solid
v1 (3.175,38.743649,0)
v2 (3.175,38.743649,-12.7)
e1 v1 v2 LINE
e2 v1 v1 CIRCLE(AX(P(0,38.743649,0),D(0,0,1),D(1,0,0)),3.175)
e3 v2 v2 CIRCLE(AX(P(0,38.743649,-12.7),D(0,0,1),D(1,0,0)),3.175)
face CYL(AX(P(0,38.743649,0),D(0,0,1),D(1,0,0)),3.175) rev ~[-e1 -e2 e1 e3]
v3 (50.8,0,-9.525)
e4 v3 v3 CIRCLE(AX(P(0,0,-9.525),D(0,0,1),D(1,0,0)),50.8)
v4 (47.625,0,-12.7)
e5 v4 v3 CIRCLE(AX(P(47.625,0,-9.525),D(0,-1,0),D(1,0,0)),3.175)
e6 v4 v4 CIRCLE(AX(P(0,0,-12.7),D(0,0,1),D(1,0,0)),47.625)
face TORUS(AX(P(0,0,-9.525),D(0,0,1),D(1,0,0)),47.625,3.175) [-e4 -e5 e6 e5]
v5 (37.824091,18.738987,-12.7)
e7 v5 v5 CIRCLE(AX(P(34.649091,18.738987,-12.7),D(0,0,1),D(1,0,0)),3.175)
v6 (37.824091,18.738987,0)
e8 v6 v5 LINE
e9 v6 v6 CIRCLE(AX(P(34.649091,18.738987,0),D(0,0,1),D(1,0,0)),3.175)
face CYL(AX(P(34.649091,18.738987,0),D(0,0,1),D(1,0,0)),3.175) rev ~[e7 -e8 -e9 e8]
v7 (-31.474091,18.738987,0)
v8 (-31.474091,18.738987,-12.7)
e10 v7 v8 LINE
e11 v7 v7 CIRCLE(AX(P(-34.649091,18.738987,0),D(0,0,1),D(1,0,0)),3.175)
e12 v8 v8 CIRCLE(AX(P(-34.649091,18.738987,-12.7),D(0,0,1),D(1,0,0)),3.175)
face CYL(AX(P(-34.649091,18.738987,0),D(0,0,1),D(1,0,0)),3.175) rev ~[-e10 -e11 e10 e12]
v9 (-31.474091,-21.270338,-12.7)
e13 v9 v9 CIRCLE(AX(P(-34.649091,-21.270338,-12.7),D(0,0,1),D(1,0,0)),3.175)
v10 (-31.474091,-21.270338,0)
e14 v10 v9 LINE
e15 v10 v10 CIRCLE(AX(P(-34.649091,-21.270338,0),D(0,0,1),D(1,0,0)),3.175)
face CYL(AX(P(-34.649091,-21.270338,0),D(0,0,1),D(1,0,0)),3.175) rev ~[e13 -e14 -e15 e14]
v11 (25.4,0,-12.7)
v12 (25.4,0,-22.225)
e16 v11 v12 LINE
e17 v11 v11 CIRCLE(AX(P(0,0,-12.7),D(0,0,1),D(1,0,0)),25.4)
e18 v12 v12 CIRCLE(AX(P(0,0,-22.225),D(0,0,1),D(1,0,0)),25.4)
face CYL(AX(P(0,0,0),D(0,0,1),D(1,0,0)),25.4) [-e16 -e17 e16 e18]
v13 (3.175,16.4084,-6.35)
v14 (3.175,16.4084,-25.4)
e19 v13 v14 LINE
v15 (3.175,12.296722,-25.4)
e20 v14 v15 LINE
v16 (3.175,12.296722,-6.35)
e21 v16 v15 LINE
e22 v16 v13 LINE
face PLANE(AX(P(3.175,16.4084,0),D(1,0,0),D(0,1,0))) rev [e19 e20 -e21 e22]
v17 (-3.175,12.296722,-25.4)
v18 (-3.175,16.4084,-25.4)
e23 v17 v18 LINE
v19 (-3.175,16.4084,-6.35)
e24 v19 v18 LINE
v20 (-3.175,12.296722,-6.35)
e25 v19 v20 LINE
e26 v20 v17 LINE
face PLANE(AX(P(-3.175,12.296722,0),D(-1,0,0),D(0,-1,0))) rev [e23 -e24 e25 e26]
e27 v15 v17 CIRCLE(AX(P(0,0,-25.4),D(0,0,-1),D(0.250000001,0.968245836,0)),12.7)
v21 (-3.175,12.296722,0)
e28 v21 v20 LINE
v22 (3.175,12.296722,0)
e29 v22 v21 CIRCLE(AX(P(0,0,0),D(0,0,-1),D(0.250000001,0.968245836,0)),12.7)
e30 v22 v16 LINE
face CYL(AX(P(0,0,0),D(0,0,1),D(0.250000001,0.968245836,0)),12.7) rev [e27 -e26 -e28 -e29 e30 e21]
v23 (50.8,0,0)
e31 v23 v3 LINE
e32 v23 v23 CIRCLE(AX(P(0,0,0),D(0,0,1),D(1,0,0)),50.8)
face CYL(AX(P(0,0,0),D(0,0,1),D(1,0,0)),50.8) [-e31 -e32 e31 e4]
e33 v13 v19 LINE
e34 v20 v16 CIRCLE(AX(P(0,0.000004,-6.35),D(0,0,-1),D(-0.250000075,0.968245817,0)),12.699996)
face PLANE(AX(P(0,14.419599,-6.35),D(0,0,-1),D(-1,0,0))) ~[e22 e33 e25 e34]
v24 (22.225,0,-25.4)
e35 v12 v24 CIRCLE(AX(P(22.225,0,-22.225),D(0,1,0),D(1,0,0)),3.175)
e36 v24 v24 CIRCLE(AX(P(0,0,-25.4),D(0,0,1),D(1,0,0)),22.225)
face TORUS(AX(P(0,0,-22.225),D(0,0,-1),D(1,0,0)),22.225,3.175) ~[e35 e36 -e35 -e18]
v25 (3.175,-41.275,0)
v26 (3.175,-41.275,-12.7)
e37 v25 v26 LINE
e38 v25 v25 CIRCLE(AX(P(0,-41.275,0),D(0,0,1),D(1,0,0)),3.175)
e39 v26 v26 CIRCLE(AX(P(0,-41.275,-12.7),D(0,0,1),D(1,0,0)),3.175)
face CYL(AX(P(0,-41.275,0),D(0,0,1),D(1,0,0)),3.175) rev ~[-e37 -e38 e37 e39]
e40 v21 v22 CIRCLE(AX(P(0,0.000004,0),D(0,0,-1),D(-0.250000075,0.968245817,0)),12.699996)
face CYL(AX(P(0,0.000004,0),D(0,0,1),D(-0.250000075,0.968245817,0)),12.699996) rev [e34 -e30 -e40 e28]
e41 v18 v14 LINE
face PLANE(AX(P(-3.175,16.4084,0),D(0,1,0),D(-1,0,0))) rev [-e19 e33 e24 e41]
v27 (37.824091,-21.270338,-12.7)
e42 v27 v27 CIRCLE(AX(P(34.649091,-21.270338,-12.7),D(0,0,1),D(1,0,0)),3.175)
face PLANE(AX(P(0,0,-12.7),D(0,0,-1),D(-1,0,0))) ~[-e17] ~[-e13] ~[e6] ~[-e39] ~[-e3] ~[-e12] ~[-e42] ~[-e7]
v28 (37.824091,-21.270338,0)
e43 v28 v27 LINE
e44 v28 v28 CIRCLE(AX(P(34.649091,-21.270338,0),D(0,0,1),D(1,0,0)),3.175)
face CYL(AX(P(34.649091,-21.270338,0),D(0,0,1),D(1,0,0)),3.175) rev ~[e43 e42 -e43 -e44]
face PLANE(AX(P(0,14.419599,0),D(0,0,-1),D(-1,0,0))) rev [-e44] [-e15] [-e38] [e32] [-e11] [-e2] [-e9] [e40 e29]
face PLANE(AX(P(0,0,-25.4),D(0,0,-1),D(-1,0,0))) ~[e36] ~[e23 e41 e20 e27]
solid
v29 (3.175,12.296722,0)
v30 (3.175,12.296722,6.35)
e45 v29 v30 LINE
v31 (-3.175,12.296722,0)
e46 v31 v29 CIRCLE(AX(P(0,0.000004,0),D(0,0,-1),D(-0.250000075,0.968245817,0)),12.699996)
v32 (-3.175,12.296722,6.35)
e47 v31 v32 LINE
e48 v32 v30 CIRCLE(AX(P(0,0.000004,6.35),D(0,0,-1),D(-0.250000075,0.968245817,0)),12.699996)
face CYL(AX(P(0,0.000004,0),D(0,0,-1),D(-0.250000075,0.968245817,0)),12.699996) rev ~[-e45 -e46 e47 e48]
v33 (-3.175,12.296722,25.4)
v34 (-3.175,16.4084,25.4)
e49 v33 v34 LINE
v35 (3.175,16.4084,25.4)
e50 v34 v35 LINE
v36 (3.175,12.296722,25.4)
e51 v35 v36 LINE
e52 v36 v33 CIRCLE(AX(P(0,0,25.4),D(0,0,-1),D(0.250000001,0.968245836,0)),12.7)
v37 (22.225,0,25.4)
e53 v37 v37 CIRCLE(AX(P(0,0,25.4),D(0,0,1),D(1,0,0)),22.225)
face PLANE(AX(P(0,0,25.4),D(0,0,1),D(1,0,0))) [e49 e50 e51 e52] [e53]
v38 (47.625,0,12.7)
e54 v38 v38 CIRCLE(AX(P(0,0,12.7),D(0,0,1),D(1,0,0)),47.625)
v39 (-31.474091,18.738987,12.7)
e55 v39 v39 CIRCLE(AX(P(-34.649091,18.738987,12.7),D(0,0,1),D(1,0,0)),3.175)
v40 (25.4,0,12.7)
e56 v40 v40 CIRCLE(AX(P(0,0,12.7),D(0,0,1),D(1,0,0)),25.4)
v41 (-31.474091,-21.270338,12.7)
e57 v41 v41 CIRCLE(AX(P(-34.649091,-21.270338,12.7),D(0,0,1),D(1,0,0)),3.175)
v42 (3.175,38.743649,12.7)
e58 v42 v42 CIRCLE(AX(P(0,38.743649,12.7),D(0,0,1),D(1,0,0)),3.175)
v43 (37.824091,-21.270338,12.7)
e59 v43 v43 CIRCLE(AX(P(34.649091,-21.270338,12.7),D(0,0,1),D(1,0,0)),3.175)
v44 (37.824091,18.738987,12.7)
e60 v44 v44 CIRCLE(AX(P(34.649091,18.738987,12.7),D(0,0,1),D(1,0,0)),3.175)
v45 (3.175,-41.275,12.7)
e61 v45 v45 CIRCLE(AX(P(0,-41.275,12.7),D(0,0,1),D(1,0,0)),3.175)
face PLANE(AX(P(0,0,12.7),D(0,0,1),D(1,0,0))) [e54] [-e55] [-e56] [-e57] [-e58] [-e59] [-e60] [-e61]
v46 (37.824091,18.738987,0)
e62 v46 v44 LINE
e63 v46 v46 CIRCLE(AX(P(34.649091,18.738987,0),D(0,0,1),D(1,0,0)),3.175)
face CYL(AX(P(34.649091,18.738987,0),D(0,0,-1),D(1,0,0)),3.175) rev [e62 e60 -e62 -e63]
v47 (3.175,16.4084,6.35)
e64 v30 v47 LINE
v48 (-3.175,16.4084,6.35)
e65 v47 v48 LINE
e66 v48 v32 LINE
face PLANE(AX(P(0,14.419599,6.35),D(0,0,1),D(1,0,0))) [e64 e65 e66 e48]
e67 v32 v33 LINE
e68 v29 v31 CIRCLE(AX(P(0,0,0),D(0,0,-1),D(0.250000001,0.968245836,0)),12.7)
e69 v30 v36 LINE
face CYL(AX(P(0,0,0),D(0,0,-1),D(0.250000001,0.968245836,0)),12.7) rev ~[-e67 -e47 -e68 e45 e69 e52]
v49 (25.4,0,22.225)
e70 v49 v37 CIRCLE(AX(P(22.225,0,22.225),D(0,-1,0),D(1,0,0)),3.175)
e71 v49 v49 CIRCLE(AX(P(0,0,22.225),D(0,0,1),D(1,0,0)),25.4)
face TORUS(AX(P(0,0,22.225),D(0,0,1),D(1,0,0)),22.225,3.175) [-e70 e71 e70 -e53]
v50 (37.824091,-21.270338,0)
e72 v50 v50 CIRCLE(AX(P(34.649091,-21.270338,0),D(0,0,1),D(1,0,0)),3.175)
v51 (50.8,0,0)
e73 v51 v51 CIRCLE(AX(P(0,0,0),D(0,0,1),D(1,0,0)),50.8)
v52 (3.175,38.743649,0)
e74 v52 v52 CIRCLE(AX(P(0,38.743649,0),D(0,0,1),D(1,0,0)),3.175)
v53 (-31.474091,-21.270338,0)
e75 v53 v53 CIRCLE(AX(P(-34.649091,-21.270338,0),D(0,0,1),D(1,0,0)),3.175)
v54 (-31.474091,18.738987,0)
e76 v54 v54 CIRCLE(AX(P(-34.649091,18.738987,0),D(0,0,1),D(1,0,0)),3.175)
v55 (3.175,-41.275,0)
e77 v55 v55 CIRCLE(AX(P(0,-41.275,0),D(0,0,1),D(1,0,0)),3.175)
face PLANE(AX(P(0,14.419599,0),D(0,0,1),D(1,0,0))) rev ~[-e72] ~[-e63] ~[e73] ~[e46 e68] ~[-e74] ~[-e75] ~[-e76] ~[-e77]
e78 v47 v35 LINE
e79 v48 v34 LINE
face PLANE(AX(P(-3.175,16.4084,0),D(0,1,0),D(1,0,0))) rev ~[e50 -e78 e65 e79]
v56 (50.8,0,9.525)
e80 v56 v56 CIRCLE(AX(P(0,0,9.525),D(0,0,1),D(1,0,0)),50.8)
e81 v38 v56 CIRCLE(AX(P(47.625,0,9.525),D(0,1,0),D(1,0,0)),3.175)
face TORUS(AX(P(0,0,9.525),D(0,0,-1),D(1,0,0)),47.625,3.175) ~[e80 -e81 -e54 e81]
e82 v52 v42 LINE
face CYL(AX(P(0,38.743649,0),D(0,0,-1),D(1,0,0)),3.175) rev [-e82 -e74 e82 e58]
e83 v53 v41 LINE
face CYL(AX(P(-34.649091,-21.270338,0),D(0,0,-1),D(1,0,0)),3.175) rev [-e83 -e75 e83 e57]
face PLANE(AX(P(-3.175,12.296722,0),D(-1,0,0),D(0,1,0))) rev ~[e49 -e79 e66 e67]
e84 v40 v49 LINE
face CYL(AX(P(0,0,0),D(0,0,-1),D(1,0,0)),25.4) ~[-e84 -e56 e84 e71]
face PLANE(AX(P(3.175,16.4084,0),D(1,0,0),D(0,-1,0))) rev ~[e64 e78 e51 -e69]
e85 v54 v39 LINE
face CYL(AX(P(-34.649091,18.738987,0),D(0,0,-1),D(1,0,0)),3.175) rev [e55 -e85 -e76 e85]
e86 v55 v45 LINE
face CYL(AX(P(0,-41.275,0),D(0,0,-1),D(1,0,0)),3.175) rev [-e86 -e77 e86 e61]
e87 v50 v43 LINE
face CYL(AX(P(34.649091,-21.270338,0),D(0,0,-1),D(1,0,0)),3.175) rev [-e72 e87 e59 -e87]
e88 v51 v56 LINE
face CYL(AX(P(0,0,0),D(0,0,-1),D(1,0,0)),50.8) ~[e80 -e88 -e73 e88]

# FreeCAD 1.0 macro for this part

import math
import FreeCAD as App
import Part
import Sketcher
from FreeCAD import Vector
Q = App.Units.Quantity


def edges_at(feature, points):
    """Names of the edges that pass closest to the given points."""
    edges = feature.Shape.Edges
    near = lambda p: min(range(len(edges)), key=lambda i: edges[i].distToShape(Part.Vertex(*p))[0])
    return sorted({f"Edge{near(p) + 1}" for p in points})

doc = App.newDocument("Part")
params = doc.addObject("Spreadsheet::Sheet", "Params")
for row, (alias, value) in enumerate([
    ("sketch1_diameter", "4 in"),
    ("sketch1_diameter2", "2 in"),
    ("sketch1_diameter3", "0.25 in"),
    ("pad1_length", "0.5 in"),
    ("sketch2_diameter", "2 in"),
    ("sketch2_radius", "0.5 in"),
    ("sketch2_width", "0.25 in"),
    ("pad2_length", "1 in"),
    ("fillet_radius", "0.125 in"),
    ("sketch3_radius", "0.4999999 in"),
    ("sketch3_width", "0.25 in"),
    ("pad3_length", "0.25 in"),
], start=1):
    params.set(f"A{row}", alias)
    params.set(f"B{row}", "=" + value)
    params.setAlias(f"B{row}", alias)

body = doc.addObject("PartDesign::Body", "Body")

# Sketch on XY plane
sketch1 = body.newObject("Sketcher::SketchObject", "Sketch")
sketch1.AttachmentSupport = (doc.getObject("XY_Plane"), [""])
sketch1.MapMode = "FlatFace"
sketch1.addGeometry(Part.Circle(Vector(0, 0, 0), Vector(0, 0, 1), 50.8), False)
sketch1.addGeometry(Part.Circle(Vector(-34.6, -21.3, 0), Vector(0, 0, 1), 3.2), False)
sketch1.addGeometry(Part.Circle(Vector(0, -41.3, 0), Vector(0, 0, 1), 3.2), False)
sketch1.addGeometry(Part.Circle(Vector(34.6, -21.3, 0), Vector(0, 0, 1), 3.2), False)
sketch1.addGeometry(Part.Circle(Vector(-34.6, 18.7, 0), Vector(0, 0, 1), 3.2), False)
sketch1.addGeometry(Part.Circle(Vector(0, 0, 0), Vector(0, 0, 1), 25.4), False)
sketch1.addGeometry(Part.Circle(Vector(34.6, 18.7, 0), Vector(0, 0, 1), 3.2), False)
sketch1.addGeometry(Part.Circle(Vector(0, 38.7, 0), Vector(0, 0, 1), 3.2), False)
sketch1.addConstraint(Sketcher.Constraint("Coincident", 0, 3, -1, 1))
sketch1.addConstraint(Sketcher.Constraint("Coincident", 5, 3, -1, 1))
sketch1.addConstraint(Sketcher.Constraint("Equal", 1, 2))
sketch1.addConstraint(Sketcher.Constraint("Equal", 2, 3))
sketch1.addConstraint(Sketcher.Constraint("Equal", 3, 4))
sketch1.addConstraint(Sketcher.Constraint("Equal", 4, 6))
sketch1.addConstraint(Sketcher.Constraint("Equal", 6, 7))
sketch1.addConstraint(Sketcher.Constraint("Symmetric", 1, 3, 3, 3, -2))
sketch1.addConstraint(Sketcher.Constraint("Symmetric", 4, 3, 6, 3, -2))
sketch1.addConstraint(Sketcher.Constraint("PointOnObject", 2, 3, -2))
sketch1.addConstraint(Sketcher.Constraint("PointOnObject", 7, 3, -2))
sketch1.addConstraint(Sketcher.Constraint("Vertical", 1, 3, 4, 3))
sketch1.addConstraint(Sketcher.Constraint("Diameter", 0, Q("4 in")))
sketch1.addConstraint(Sketcher.Constraint("Diameter", 5, Q("2 in")))
sketch1.addConstraint(Sketcher.Constraint("Diameter", 1, Q("0.25 in")))
sketch1.addConstraint(Sketcher.Constraint("DistanceY", 2, 3, -1, 1, Q("1.625 in")))
sketch1.addConstraint(Sketcher.Constraint("DistanceX", 1, 3, -1, 1, 34.649091))
sketch1.addConstraint(Sketcher.Constraint("DistanceY", -1, 1, 7, 3, 38.743649))
sketch1.addConstraint(Sketcher.Constraint("DistanceY", 2, 3, 1, 3, 20.004662))
sketch1.addConstraint(Sketcher.Constraint("DistanceY", 4, 3, 7, 3, 20.004662))
sketch1.setExpression("Constraints[12]", "Params.sketch1_diameter")
sketch1.setExpression("Constraints[13]", "Params.sketch1_diameter2")
sketch1.setExpression("Constraints[14]", "Params.sketch1_diameter3")
pad1 = body.newObject("PartDesign::Pad", "Pad")
pad1.Profile = sketch1
pad1.setExpression("Length", "Params.pad1_length")

# Sketch on XY plane
sketch2 = body.newObject("Sketcher::SketchObject", "Sketch001")
sketch2.AttachmentSupport = (doc.getObject("XY_Plane"), [""])
sketch2.MapMode = "FlatFace"
sketch2.addGeometry(Part.Circle(Vector(0, 0, 0), Vector(0, 0, 1), 25.4), False)
sketch2.addGeometry(Part.LineSegment(Vector(3.2, 16.4, 0), Vector(3.2, 12.3, 0)), False)
sketch2.addGeometry(Part.ArcOfCircle(Part.Circle(Vector(0, 0, 0), Vector(0, 0, 1), 12.7), math.radians(104), math.radians(436)), False)
sketch2.addGeometry(Part.LineSegment(Vector(-3.2, 12.3, 0), Vector(-3.2, 16.4, 0)), False)
sketch2.addGeometry(Part.LineSegment(Vector(-3.2, 16.4, 0), Vector(3.2, 16.4, 0)), False)
sketch2.addConstraint(Sketcher.Constraint("Coincident", 1, 2, 2, 2))
sketch2.addConstraint(Sketcher.Constraint("Coincident", 2, 1, 3, 1))
sketch2.addConstraint(Sketcher.Constraint("Coincident", 3, 2, 4, 1))
sketch2.addConstraint(Sketcher.Constraint("Coincident", 4, 2, 1, 1))
sketch2.addConstraint(Sketcher.Constraint("Vertical", 1))
sketch2.addConstraint(Sketcher.Constraint("Vertical", 3))
sketch2.addConstraint(Sketcher.Constraint("Horizontal", 4))
sketch2.addConstraint(Sketcher.Constraint("Coincident", 0, 3, -1, 1))
sketch2.addConstraint(Sketcher.Constraint("Coincident", 2, 3, -1, 1))
sketch2.addConstraint(Sketcher.Constraint("Horizontal", 1, 2, 2, 1))
sketch2.addConstraint(Sketcher.Constraint("Diameter", 0, Q("2 in")))
sketch2.addConstraint(Sketcher.Constraint("Radius", 2, Q("0.5 in")))
sketch2.addConstraint(Sketcher.Constraint("DistanceX", 4, 1, 4, 2, Q("0.25 in")))
sketch2.addConstraint(Sketcher.Constraint("DistanceY", -1, 1, 3, 2, Q("0.646 in")))
sketch2.setExpression("Constraints[10]", "Params.sketch2_diameter")
sketch2.setExpression("Constraints[11]", "Params.sketch2_radius")
sketch2.setExpression("Constraints[12]", "Params.sketch2_width")
pad2 = body.newObject("PartDesign::Pad", "Pad001")
pad2.Profile = sketch2
pad2.setExpression("Length", "Params.pad2_length")
doc.recompute()

fillet = body.newObject("PartDesign::Fillet", "Fillet")
fillet.Base = (pad2, edges_at(pad2, [(-25.4, 0, 25.4), (-50.8, 0, 12.7)]))
fillet.setExpression("Radius", "Params.fillet_radius")

# Sketch on XY plane
sketch3 = body.newObject("Sketcher::SketchObject", "Sketch002")
sketch3.AttachmentSupport = (doc.getObject("XY_Plane"), [""])
sketch3.MapMode = "FlatFace"
sketch3.addGeometry(Part.LineSegment(Vector(-3.2, 16.4, 0), Vector(-3.2, 12.3, 0)), False)
sketch3.addGeometry(Part.ArcOfCircle(Part.Circle(Vector(0, 0, 0), Vector(0, 0, 1), 12.7), math.radians(76), math.radians(104)), False)
sketch3.addGeometry(Part.LineSegment(Vector(3.2, 12.3, 0), Vector(3.2, 16.4, 0)), False)
sketch3.addGeometry(Part.LineSegment(Vector(3.2, 16.4, 0), Vector(-3.2, 16.4, 0)), False)
sketch3.addConstraint(Sketcher.Constraint("Coincident", 0, 2, 1, 2))
sketch3.addConstraint(Sketcher.Constraint("Coincident", 1, 1, 2, 1))
sketch3.addConstraint(Sketcher.Constraint("Coincident", 2, 2, 3, 1))
sketch3.addConstraint(Sketcher.Constraint("Coincident", 3, 2, 0, 1))
sketch3.addConstraint(Sketcher.Constraint("Vertical", 0))
sketch3.addConstraint(Sketcher.Constraint("Vertical", 2))
sketch3.addConstraint(Sketcher.Constraint("Horizontal", 3))
sketch3.addConstraint(Sketcher.Constraint("Coincident", 1, 3, -1, 1))
sketch3.addConstraint(Sketcher.Constraint("Horizontal", 0, 2, 1, 1))
sketch3.addConstraint(Sketcher.Constraint("Radius", 1, Q("0.4999999 in")))
sketch3.addConstraint(Sketcher.Constraint("DistanceX", 3, 2, 3, 1, Q("0.25 in")))
sketch3.addConstraint(Sketcher.Constraint("DistanceY", -1, 1, 2, 2, Q("0.646 in")))
sketch3.setExpression("Constraints[9]", "Params.sketch3_radius")
sketch3.setExpression("Constraints[10]", "Params.sketch3_width")
pad3 = body.newObject("PartDesign::Pad", "Pad002")
pad3.Profile = sketch3
pad3.setExpression("Length", "Params.pad3_length")
body2 = doc.addObject("PartDesign::Body", "Body001")
doc.recompute()

mirroring = doc.addObject("Part::Mirroring", "Mirroring")
mirroring.Source = body
mirroring.Base = Vector(0, 0, 0)
mirroring.Normal = Vector(0, 0, 1)
body2.BaseFeature = mirroring
doc.recompute()
mirroring.Visibility = False

doc.recompute()
